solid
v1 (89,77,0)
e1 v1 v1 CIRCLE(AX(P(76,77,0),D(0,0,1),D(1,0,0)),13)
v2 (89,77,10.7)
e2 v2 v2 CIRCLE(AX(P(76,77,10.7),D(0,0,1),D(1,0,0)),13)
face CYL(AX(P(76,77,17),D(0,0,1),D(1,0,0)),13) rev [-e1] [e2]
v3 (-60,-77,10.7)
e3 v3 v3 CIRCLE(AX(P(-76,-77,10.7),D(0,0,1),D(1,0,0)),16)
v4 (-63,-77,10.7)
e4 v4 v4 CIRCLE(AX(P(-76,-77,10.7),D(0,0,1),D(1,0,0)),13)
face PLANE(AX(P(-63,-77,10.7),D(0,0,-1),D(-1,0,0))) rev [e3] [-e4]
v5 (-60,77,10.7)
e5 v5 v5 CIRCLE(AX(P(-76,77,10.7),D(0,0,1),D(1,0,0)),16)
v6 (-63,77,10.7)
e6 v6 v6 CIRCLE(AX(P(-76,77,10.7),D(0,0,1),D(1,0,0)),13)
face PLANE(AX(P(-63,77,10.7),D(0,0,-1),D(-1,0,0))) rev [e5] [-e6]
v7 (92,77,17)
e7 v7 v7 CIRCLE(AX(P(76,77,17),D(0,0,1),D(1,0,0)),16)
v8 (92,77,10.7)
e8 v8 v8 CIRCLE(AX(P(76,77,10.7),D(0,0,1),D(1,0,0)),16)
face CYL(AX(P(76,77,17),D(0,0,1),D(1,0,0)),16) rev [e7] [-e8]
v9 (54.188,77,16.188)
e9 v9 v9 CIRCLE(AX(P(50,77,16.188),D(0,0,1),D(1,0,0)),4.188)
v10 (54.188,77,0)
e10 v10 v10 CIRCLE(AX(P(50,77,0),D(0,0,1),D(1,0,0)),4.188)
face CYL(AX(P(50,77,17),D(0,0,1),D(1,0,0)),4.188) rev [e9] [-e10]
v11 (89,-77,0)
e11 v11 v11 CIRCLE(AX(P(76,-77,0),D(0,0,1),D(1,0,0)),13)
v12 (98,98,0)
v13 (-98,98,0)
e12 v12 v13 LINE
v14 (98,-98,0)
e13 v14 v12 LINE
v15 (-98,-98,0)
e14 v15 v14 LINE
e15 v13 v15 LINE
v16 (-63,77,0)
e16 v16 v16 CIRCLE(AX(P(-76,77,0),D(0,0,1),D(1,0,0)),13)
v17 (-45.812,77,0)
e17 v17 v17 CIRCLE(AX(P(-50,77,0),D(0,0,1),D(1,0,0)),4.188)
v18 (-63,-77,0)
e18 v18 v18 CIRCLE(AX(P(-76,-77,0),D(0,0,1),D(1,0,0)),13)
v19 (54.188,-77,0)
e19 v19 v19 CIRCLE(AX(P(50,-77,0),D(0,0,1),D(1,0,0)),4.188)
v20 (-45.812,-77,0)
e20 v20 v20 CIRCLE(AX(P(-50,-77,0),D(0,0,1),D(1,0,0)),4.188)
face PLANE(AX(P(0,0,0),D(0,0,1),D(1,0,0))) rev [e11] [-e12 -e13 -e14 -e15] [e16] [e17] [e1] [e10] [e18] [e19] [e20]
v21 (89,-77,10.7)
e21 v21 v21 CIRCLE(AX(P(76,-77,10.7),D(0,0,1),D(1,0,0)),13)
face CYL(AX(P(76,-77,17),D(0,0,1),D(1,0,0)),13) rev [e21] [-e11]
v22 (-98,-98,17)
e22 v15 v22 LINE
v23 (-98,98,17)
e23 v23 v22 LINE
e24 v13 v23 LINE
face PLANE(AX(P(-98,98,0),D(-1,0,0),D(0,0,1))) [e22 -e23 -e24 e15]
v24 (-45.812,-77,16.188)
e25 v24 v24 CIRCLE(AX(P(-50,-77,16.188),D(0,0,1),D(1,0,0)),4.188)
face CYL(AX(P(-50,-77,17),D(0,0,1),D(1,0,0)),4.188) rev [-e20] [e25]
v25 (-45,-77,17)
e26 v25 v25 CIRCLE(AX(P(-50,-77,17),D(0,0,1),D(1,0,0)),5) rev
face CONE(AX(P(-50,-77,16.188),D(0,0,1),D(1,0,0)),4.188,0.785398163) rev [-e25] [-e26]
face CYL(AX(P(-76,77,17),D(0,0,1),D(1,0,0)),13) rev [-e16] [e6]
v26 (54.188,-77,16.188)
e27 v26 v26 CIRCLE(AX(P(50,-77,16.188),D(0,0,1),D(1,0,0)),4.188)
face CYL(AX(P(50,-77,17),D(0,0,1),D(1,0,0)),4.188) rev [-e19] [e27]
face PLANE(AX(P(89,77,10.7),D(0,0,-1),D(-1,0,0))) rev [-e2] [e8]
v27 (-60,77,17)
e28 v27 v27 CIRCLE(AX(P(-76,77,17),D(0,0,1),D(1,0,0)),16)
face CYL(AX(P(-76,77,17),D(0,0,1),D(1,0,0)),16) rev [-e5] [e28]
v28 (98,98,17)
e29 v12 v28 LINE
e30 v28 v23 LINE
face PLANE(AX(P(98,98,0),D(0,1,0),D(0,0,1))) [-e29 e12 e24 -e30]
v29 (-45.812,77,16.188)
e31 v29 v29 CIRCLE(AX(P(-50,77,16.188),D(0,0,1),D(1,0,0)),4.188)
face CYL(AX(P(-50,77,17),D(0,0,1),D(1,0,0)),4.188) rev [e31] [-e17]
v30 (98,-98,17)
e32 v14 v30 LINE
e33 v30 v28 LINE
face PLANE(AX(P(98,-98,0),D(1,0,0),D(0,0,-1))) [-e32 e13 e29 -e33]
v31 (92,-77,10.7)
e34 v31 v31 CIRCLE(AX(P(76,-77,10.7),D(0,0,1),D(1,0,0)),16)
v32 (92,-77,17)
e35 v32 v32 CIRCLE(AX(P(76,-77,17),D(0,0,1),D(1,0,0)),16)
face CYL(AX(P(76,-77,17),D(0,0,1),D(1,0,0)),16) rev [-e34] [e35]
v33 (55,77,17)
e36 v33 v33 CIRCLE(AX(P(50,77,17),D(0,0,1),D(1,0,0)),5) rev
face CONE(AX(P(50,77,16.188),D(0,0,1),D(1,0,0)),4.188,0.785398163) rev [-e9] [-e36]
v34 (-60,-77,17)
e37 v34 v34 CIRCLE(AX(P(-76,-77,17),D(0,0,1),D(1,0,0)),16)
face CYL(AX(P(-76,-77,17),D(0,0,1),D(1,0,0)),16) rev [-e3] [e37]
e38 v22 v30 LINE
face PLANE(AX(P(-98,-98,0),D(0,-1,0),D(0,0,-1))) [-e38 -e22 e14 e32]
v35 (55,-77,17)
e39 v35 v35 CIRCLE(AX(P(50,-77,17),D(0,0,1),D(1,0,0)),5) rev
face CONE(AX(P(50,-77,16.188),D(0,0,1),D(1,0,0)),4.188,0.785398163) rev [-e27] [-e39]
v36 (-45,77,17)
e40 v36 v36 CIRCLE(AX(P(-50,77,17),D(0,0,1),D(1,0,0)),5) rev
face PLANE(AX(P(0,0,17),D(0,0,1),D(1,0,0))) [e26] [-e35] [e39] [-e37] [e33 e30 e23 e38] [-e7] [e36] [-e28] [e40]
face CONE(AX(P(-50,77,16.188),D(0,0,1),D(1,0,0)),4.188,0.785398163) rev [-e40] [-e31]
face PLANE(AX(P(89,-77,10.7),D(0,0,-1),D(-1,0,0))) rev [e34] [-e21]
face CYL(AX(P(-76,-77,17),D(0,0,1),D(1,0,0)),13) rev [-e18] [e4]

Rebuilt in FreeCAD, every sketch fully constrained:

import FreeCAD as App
import Part
import Sketcher
from FreeCAD import Vector
Q = App.Units.Quantity


def edges_at(feature, points):
    """Names of the edges that pass closest to the given points."""
    edges = feature.Shape.Edges
    near = lambda p: min(range(len(edges)), key=lambda i: edges[i].distToShape(Part.Vertex(*p))[0])
    return sorted({f"Edge{near(p) + 1}" for p in points})

doc = App.newDocument("Part")
body = doc.addObject("PartDesign::Body", "Body")

sketch1 = doc.addObject("Sketcher::SketchObject", "Sketch")
body.addObject(sketch1)
sketch1.AttachmentSupport = (doc.XY_Plane, [""])
sketch1.MapMode = "FlatFace"
sketch1.AttachmentOffset = App.Placement(Vector(0, 0, 17), App.Rotation())
sketch1.addGeometry(Part.LineSegment(Vector(-98, 98, 0), Vector(-98, -98, 0)), False)
sketch1.addGeometry(Part.LineSegment(Vector(-98, -98, 0), Vector(98, -98, 0)), False)
sketch1.addGeometry(Part.LineSegment(Vector(98, -98, 0), Vector(98, 98, 0)), False)
sketch1.addGeometry(Part.LineSegment(Vector(98, 98, 0), Vector(-98, 98, 0)), False)
sketch1.addConstraint(Sketcher.Constraint("Coincident", 0, 2, 1, 1))
sketch1.addConstraint(Sketcher.Constraint("Coincident", 1, 2, 2, 1))
sketch1.addConstraint(Sketcher.Constraint("Coincident", 2, 2, 3, 1))
sketch1.addConstraint(Sketcher.Constraint("Coincident", 3, 2, 0, 1))
sketch1.addConstraint(Sketcher.Constraint("Vertical", 0))
sketch1.addConstraint(Sketcher.Constraint("Horizontal", 1))
sketch1.addConstraint(Sketcher.Constraint("Vertical", 2))
sketch1.addConstraint(Sketcher.Constraint("Horizontal", 3))
sketch1.addConstraint(Sketcher.Constraint("Symmetric", 0, 2, 2, 2, -1, 1))
sketch1.addConstraint(Sketcher.Constraint("Equal", 3, 0))
sketch1.addConstraint(Sketcher.Constraint("DistanceX", 1, 1, 1, 2, Q("196 mm")))
pad1 = doc.addObject("PartDesign::Pad", "Pad")
body.addObject(pad1)
pad1.Profile = sketch1
pad1.Length = 17
pad1.Reversed = True

sketch2 = doc.addObject("Sketcher::SketchObject", "Sketch001")
body.addObject(sketch2)
sketch2.AttachmentSupport = (doc.XY_Plane, [""])
sketch2.MapMode = "FlatFace"
sketch2.AttachmentOffset = App.Placement(Vector(0, 0, 17), App.Rotation())
sketch2.addGeometry(Part.Circle(Vector(-50, 77, 0), Vector(0, 0, 1), 4.2), False)
sketch2.addGeometry(Part.Circle(Vector(-50, -77, 0), Vector(0, 0, 1), 4.2), False)
sketch2.addGeometry(Part.Circle(Vector(50, 77, 0), Vector(0, 0, 1), 4.2), False)
sketch2.addGeometry(Part.Circle(Vector(50, -77, 0), Vector(0, 0, 1), 4.2), False)
sketch2.addConstraint(Sketcher.Constraint("Equal", 0, 1))
sketch2.addConstraint(Sketcher.Constraint("Equal", 1, 2))
sketch2.addConstraint(Sketcher.Constraint("Equal", 2, 3))
sketch2.addConstraint(Sketcher.Constraint("Symmetric", 1, 3, 2, 3, -1, 1))
sketch2.addConstraint(Sketcher.Constraint("Symmetric", 0, 3, 3, 3, -1, 1))
sketch2.addConstraint(Sketcher.Constraint("Symmetric", 0, 3, 2, 3, -2))
sketch2.addConstraint(Sketcher.Constraint("Diameter", 0, Q("8.376 mm")))
sketch2.addConstraint(Sketcher.Constraint("DistanceX", 0, 3, -1, 1, Q("50 mm")))
sketch2.addConstraint(Sketcher.Constraint("DistanceY", -1, 1, 0, 3, Q("77 mm")))
doc.recompute()
hole = doc.addObject("PartDesign::Hole", "Hole")
body.addObject(hole)
hole.Profile = sketch2
hole.ThreadType = "None"
hole.Diameter = 8.376
hole.DepthType = "ThroughAll"

sketch3 = doc.addObject("Sketcher::SketchObject", "Sketch002")
body.addObject(sketch3)
sketch3.AttachmentSupport = (doc.XY_Plane, [""])
sketch3.MapMode = "FlatFace"
sketch3.AttachmentOffset = App.Placement(Vector(0, 0, 17), App.Rotation())
sketch3.addGeometry(Part.Circle(Vector(76, -77, 0), Vector(0, 0, 1), 13), False)
sketch3.addGeometry(Part.Circle(Vector(-76, -77, 0), Vector(0, 0, 1), 13), False)
sketch3.addGeometry(Part.Circle(Vector(76, 77, 0), Vector(0, 0, 1), 13), False)
sketch3.addGeometry(Part.Circle(Vector(-76, 77, 0), Vector(0, 0, 1), 13), False)
sketch3.addConstraint(Sketcher.Constraint("Equal", 0, 1))
sketch3.addConstraint(Sketcher.Constraint("Equal", 1, 2))
sketch3.addConstraint(Sketcher.Constraint("Equal", 2, 3))
sketch3.addConstraint(Sketcher.Constraint("Symmetric", 1, 3, 2, 3, -1, 1))
sketch3.addConstraint(Sketcher.Constraint("Symmetric", 0, 3, 3, 3, -1, 1))
sketch3.addConstraint(Sketcher.Constraint("Symmetric", 0, 3, 1, 3, -2))
sketch3.addConstraint(Sketcher.Constraint("Diameter", 0, Q("26 mm")))
sketch3.addConstraint(Sketcher.Constraint("DistanceX", -1, 1, 0, 3, Q("76 mm")))
sketch3.addConstraint(Sketcher.Constraint("DistanceY", 0, 3, -1, 1, Q("77 mm")))
doc.recompute()
hole2 = doc.addObject("PartDesign::Hole", "Hole001")
body.addObject(hole2)
hole2.Profile = sketch3
hole2.ThreadType = "None"
hole2.Diameter = 26
hole2.DepthType = "ThroughAll"
hole2.HoleCutType = "Counterbore"
hole2.HoleCutDiameter = 32
hole2.HoleCutDepth = 6.3
doc.recompute()

chamfer = doc.addObject("PartDesign::Chamfer", "Chamfer")
body.addObject(chamfer)
chamfer.Base = (hole2, edges_at(hole2, [
    (54.188, -77, 17),
    (54.188, 77, 17),
    (-45.812, -77, 17),
    (-45.812, 77, 17),
]))
chamfer.Size = 0.812

doc.recompute()
